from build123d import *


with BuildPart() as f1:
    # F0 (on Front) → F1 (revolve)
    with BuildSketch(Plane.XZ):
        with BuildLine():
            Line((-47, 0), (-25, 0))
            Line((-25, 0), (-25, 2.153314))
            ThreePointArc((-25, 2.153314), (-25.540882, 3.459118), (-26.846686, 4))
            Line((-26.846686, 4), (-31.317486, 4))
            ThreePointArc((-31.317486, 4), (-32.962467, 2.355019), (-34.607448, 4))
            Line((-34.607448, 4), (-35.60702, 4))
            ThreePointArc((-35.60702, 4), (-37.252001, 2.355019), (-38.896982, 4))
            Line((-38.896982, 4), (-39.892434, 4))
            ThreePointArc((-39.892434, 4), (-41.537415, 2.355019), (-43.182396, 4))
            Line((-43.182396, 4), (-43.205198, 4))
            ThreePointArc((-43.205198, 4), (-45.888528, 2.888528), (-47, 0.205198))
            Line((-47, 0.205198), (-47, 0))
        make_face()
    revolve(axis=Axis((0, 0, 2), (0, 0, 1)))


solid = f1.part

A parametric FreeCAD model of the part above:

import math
import FreeCAD as App
import Part
import Sketcher
from FreeCAD import Vector
Q = App.Units.Quantity

doc = App.newDocument("Part")
params = doc.addObject("Spreadsheet::Sheet", "Params")
for row, (alias, value) in enumerate([
    ("sketch1_width", "22 mm"),
    ("revolution_angle", "360 deg"),
], start=1):
    params.set(f"A{row}", alias)
    params.set(f"B{row}", "=" + value)
    params.setAlias(f"B{row}", alias)

body = doc.addObject("PartDesign::Body", "Body")

# Sketch on XZ plane
sketch1 = doc.addObject("Sketcher::SketchObject", "Sketch")
body.addObject(sketch1)
sketch1.AttachmentSupport = (doc.XZ_Plane, [""])
sketch1.MapMode = "FlatFace"
sketch1.addGeometry([
    Part.LineSegment(Vector(-47, 0, 0), Vector(-25, 0, 0)),  # 0
    Part.LineSegment(Vector(-25, 0, 0), Vector(-25, 2.153, 0)),  # 1
    Part.ArcOfCircle(Part.Circle(Vector(-26.847, 2.153, 0), Vector(0, 0, 1), 1.847), math.radians(0), math.radians(90)),  # 2
    Part.LineSegment(Vector(-26.847, 4, 0), Vector(-31.317, 4, 0)),  # 3
    Part.ArcOfCircle(Part.Circle(Vector(-32.962, 4, 0), Vector(0, 0, 1), 1.645), math.radians(180), math.radians(360)),  # 4
    Part.LineSegment(Vector(-34.607, 4, 0), Vector(-35.607, 4, 0)),  # 5
    Part.ArcOfCircle(Part.Circle(Vector(-37.252, 4, 0), Vector(0, 0, 1), 1.645), math.radians(180), math.radians(360)),  # 6
    Part.LineSegment(Vector(-38.897, 4, 0), Vector(-39.892, 4, 0)),  # 7
    Part.ArcOfCircle(Part.Circle(Vector(-41.537, 4, 0), Vector(0, 0, 1), 1.645), math.radians(180), math.radians(360)),  # 8
    Part.LineSegment(Vector(-43.182, 4, 0), Vector(-43.205, 4, 0)),  # 9
    Part.ArcOfCircle(Part.Circle(Vector(-43.205, 0.205, 0), Vector(0, 0, 1), 3.795), math.radians(90), math.radians(180)),  # 10
    Part.LineSegment(Vector(-47, 0.205, 0), Vector(-47, 0, 0)),  # 11
], False)
sketch1.addConstraint([
    Sketcher.Constraint("Coincident", 0, 2, 1, 1),
    Sketcher.Constraint("Tangent", 1, 2, 2, 1),
    Sketcher.Constraint("Tangent", 2, 2, 3, 1),
    Sketcher.Constraint("Coincident", 3, 2, 4, 2),
    Sketcher.Constraint("Coincident", 4, 1, 5, 1),
    Sketcher.Constraint("Coincident", 5, 2, 6, 2),
    Sketcher.Constraint("Coincident", 6, 1, 7, 1),
    Sketcher.Constraint("Coincident", 7, 2, 8, 2),
    Sketcher.Constraint("Coincident", 8, 1, 9, 1),
    Sketcher.Constraint("Tangent", 9, 2, 10, 1),
    Sketcher.Constraint("Tangent", 10, 2, 11, 1),
    Sketcher.Constraint("Coincident", 11, 2, 0, 1),
    Sketcher.Constraint("Horizontal", 0),
    Sketcher.Constraint("Vertical", 1),
    Sketcher.Constraint("Horizontal", 3),
    Sketcher.Constraint("Horizontal", 5),
    Sketcher.Constraint("Horizontal", 7),
    Sketcher.Constraint("Horizontal", 9),
    Sketcher.Constraint("Vertical", 11),
    Sketcher.Constraint("Equal", 4, 6),
    Sketcher.Constraint("Equal", 6, 8),
    Sketcher.Constraint("PointOnObject", 0, 2, -1),
    Sketcher.Constraint("Horizontal", 4, 3, 6, 3),
    Sketcher.Constraint("Horizontal", 6, 3, 8, 3),
    Sketcher.Constraint("Horizontal", 8, 3, 2, 2),
    Sketcher.Constraint("Horizontal", 3, 2, 4, 1),
    Sketcher.Constraint("Horizontal", 5, 2, 6, 1),
    Sketcher.Constraint("Horizontal", 7, 2, 8, 1),
    Sketcher.Constraint("DistanceX", 0, 1, 0, 2, Q("22 mm")),
    Sketcher.Constraint("DistanceY", -1, 1, 4, 3, Q("4 mm")),
    Sketcher.Constraint("DistanceX", 0, 2, -1, 1, Q("25 mm")),
    Sketcher.Constraint("Radius", 4, Q("1.644981 mm")),
    Sketcher.Constraint("DistanceX", 3, 2, 3, 1, Q("4.4708 mm")),
    Sketcher.Constraint("DistanceX", 6, 3, -1, 1, Q("37.252001 mm")),
    Sketcher.Constraint("Radius", 2, Q("1.846687 mm")),
    Sketcher.Constraint("Radius", 10, Q("3.794803 mm")),
    Sketcher.Constraint("DistanceX", 10, 3, 8, 1, Q("0.022801 mm")),
])
sketch1.setExpression("Constraints[28]", "Params.sketch1_width")
revolution = doc.addObject("PartDesign::Revolution", "Revolution")
body.addObject(revolution)
revolution.Profile = sketch1
revolution.ReferenceAxis = (sketch1, ["V_Axis"])
revolution.setExpression("Angle", "Params.revolution_angle")

doc.recompute()
